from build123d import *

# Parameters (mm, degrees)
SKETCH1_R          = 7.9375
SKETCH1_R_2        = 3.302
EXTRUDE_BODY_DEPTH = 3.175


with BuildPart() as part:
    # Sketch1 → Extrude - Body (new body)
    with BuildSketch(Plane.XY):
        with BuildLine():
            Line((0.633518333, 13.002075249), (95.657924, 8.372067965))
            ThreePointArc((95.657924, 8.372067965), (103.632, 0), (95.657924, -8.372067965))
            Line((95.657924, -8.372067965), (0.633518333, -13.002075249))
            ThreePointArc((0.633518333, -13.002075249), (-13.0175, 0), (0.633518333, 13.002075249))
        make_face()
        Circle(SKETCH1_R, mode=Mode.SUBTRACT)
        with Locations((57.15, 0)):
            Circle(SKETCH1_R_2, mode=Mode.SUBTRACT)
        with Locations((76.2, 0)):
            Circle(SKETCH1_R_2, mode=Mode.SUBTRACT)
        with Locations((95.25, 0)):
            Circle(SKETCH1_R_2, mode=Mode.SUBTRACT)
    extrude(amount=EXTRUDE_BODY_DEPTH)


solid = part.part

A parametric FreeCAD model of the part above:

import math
import FreeCAD as App
import Part
import Sketcher
Q = App.Units.Quantity

doc = App.newDocument("Part")
body = doc.addObject("PartDesign::Body", "Body")

# Sketch on XY plane
sketch1 = body.newObject("Sketcher::SketchObject", "Sketch")
sketch1.AttachmentSupport = (doc.getObject("XY_Plane"), [""])
sketch1.MapMode = "FlatFace"
sketch1.addGeometry([
    Part.LineSegment(App.Vector(95.7, 8.4, 0), App.Vector(0.6, 13, 0)),  # 0
    Part.ArcOfCircle(Part.Circle(App.Vector(0, 0, 0), App.Vector(0, 0, 1), 13), math.radians(87), math.radians(273)),  # 1
    Part.LineSegment(App.Vector(0.6, -13, 0), App.Vector(95.7, -8.4, 0)),  # 2
    Part.ArcOfCircle(Part.Circle(App.Vector(95.2, 0, 0), App.Vector(0, 0, 1), 8.4), math.radians(-87), math.radians(87)),  # 3
    Part.Circle(App.Vector(95.2, 0, 0), App.Vector(0, 0, 1), 3.3),  # 4
    Part.Circle(App.Vector(76.2, 0, 0), App.Vector(0, 0, 1), 3.3),  # 5
    Part.Circle(App.Vector(57.1, 0, 0), App.Vector(0, 0, 1), 3.3),  # 6
    Part.Circle(App.Vector(0, 0, 0), App.Vector(0, 0, 1), 7.9),  # 7
], False)
sketch1.addConstraint([
    Sketcher.Constraint("Tangent", 0, 2, 1, 1),
    Sketcher.Constraint("Tangent", 1, 2, 2, 1),
    Sketcher.Constraint("Tangent", 2, 2, 3, 1),
    Sketcher.Constraint("Tangent", 3, 2, 0, 1),
    Sketcher.Constraint("Coincident", 1, 3, -1, 1),
    Sketcher.Constraint("Coincident", 7, 3, -1, 1),
    Sketcher.Constraint("Coincident", 4, 3, 3, 3),
    Sketcher.Constraint("Equal", 4, 5),
    Sketcher.Constraint("Equal", 5, 6),
    Sketcher.Constraint("PointOnObject", 3, 3, -1),
    Sketcher.Constraint("PointOnObject", 5, 3, -1),
    Sketcher.Constraint("PointOnObject", 6, 3, -1),
    Sketcher.Constraint("Diameter", 4, Q("0.26 in")),
    Sketcher.Constraint("Radius", 3, Q("0.33 in")),
    Sketcher.Constraint("Diameter", 7, Q("0.625 in")),
    Sketcher.Constraint("DistanceX", -1, 1, 5, 3, Q("3 in")),
    Sketcher.Constraint("Radius", 1, Q("0.5125 in")),
    Sketcher.Constraint("DistanceX", 6, 3, 3, 3, Q("1.5 in")),
    Sketcher.Constraint("DistanceX", -1, 1, 3, 3, Q("3.75 in")),
])
pad1 = body.newObject("PartDesign::Pad", "Pad")
pad1.Profile = sketch1
pad1.Length = Q("0.125 in")

doc.recompute()
